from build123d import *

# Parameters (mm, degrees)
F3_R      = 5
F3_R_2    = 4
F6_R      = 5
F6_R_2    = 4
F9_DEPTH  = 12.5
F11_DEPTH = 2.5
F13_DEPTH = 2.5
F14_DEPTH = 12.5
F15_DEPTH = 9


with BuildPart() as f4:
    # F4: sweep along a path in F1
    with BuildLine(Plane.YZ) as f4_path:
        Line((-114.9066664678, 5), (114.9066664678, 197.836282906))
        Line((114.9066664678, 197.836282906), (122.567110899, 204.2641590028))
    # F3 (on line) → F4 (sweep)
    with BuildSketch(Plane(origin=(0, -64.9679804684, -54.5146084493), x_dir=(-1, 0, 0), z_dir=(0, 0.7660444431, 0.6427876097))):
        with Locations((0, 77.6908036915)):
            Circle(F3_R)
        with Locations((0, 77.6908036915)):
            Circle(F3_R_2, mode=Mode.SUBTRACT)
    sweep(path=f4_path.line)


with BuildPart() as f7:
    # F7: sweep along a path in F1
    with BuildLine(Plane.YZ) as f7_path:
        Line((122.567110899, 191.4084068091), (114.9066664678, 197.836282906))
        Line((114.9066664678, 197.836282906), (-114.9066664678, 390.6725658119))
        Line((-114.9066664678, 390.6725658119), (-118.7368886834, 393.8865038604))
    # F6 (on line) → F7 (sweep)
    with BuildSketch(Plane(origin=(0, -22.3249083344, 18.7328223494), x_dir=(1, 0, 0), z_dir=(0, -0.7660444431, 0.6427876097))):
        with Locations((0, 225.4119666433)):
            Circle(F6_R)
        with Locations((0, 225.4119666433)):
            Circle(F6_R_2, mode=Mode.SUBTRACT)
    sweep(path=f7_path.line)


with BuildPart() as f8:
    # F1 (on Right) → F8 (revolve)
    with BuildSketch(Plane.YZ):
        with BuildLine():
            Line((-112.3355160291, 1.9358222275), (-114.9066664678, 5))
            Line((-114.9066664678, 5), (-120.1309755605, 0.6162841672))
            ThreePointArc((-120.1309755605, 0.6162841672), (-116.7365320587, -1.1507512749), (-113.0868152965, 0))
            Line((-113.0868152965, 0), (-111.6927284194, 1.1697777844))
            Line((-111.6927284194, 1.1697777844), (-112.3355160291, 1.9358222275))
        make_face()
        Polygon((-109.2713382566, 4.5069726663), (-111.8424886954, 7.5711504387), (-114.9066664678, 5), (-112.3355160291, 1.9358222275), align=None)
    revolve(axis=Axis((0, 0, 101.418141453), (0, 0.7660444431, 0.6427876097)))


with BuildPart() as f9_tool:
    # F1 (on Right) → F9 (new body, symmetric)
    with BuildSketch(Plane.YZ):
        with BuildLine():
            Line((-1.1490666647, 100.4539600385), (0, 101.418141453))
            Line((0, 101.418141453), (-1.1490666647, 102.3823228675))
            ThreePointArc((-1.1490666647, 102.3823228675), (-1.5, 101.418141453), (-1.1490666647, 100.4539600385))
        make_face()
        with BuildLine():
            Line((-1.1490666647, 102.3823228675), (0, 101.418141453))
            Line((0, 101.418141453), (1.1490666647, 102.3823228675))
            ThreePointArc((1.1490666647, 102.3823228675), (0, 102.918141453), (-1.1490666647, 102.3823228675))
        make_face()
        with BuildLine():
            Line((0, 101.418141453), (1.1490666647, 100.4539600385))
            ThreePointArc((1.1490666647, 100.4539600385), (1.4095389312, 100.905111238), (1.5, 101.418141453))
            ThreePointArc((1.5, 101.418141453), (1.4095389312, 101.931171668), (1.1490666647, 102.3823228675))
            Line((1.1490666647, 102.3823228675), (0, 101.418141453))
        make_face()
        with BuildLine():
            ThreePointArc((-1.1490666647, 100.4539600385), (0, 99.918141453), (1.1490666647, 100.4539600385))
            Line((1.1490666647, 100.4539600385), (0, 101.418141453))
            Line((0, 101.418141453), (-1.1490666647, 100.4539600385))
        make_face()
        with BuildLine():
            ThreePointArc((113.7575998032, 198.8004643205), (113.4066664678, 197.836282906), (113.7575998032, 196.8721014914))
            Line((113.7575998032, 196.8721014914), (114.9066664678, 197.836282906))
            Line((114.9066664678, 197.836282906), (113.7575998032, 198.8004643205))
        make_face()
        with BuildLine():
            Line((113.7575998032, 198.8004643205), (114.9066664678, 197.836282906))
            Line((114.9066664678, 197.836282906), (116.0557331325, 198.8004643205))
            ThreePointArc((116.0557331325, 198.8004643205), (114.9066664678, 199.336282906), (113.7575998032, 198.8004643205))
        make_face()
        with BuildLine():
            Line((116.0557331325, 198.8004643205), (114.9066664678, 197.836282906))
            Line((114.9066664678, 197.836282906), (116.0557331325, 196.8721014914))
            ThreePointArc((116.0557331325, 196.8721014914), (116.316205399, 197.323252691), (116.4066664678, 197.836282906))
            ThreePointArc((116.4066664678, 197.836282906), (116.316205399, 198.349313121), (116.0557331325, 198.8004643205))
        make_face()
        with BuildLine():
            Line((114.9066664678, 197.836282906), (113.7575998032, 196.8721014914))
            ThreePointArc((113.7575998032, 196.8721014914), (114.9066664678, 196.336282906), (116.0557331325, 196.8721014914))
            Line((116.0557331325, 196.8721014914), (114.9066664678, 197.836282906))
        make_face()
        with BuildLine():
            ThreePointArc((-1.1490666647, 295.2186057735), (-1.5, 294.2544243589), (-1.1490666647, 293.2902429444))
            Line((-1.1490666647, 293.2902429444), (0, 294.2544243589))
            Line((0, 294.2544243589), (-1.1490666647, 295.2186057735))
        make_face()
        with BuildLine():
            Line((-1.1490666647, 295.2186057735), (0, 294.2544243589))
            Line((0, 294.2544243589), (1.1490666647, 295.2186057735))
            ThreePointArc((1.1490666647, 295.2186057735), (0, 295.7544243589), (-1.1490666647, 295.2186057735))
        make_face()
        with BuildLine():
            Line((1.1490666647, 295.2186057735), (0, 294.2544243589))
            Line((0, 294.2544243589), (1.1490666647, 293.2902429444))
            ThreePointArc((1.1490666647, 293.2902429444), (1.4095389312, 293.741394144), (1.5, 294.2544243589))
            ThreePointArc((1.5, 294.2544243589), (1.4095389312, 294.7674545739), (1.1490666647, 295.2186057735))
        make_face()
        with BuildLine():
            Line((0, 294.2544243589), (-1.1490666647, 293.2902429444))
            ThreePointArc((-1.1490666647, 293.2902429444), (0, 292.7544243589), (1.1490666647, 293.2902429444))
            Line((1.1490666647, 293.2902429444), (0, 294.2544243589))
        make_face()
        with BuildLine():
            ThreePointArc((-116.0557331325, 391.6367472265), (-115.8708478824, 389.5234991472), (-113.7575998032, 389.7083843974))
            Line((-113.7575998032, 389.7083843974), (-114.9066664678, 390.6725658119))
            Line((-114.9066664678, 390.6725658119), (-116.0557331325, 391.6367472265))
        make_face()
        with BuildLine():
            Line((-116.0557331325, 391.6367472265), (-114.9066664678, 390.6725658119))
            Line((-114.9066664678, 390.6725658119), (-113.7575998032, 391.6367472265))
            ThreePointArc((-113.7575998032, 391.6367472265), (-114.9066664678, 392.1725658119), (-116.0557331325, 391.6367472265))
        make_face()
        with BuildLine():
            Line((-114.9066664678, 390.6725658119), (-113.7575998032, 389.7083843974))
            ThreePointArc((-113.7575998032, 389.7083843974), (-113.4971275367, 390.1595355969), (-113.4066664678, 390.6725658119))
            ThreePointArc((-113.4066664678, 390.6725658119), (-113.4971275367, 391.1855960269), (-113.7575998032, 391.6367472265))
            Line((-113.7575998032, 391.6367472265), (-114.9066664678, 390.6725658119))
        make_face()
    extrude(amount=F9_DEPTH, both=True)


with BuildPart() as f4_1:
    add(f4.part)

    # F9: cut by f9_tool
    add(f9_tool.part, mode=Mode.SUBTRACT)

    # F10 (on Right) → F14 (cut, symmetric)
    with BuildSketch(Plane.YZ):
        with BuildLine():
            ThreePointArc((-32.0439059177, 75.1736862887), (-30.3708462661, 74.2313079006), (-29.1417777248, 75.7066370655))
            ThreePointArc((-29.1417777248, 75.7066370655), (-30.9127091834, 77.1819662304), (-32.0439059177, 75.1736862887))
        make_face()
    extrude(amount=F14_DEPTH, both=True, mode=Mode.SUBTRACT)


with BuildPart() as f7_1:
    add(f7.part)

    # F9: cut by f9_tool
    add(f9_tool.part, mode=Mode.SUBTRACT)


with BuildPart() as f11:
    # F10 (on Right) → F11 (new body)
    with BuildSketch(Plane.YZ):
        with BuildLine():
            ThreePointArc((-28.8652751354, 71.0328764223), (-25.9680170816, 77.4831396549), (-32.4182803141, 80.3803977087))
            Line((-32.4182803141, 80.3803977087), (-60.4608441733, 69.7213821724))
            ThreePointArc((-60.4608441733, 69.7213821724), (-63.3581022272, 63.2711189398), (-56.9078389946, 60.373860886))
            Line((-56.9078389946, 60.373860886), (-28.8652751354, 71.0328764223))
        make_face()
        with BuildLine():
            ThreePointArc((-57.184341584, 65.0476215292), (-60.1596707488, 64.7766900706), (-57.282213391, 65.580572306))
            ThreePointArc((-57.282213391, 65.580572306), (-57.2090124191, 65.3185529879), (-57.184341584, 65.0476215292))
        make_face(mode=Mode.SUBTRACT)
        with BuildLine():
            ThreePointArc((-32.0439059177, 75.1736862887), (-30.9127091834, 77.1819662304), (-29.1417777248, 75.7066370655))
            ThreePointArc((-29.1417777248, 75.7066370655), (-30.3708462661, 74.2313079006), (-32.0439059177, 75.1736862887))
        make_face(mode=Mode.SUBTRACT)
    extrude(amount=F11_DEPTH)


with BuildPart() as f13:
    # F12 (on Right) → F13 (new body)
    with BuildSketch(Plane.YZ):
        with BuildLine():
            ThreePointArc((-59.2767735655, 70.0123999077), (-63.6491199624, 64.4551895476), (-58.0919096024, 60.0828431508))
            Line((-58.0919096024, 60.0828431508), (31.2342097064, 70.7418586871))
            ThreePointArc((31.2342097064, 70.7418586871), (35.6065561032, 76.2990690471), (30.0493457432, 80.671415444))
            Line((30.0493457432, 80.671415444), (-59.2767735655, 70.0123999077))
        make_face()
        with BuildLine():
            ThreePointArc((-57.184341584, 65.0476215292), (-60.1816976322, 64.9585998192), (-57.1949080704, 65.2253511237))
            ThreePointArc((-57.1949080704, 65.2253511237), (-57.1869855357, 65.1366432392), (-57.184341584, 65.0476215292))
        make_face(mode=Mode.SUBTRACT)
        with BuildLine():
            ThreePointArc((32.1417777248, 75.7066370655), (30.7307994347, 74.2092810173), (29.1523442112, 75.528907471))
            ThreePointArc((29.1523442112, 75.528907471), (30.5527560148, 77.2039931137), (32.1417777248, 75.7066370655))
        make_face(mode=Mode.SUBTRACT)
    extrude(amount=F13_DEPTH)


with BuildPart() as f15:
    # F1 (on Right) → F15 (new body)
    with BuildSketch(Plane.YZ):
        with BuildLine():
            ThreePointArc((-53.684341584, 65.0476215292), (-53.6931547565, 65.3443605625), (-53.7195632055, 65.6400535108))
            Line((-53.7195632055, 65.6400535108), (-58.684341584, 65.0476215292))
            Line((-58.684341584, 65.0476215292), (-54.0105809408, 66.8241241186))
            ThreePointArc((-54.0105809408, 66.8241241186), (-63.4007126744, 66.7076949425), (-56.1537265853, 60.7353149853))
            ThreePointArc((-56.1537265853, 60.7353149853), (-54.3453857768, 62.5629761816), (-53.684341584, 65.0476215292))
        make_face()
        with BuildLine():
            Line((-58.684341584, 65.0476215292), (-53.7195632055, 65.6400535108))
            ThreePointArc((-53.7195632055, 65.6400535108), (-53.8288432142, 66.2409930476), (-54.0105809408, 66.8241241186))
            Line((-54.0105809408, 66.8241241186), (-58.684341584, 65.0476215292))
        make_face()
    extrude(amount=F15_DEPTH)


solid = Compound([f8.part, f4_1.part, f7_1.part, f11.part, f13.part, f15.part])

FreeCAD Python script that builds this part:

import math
import FreeCAD as App
import Part
import Sketcher

V = App.Vector
Q = App.Units.Quantity

doc = App.newDocument("Part")
params = doc.addObject("Spreadsheet::Sheet", "Params")
for row, (alias, value) in enumerate([
    ("sketch1_diameter", "10 mm"),
    ("sketch1_diameter2", "8 mm"),
    ("sketch2_width", "300 mm"),
    ("sketch2_width2", "10 mm"),
    ("sketch3_diameter", "10 mm"),
    ("sketch3_diameter2", "8 mm"),
    ("sketch4_width", "10 mm"),
    ("sketch4_width2", "300 mm"),
    ("sketch4_width3", "5 mm"),
    ("sketch5_radius", "5 mm"),
    ("sketch5_length", "1 mm"),
    ("sketch5_length2", "4 mm"),
    ("revolution_angle", "360 deg"),
    ("sketch6_radius", "1.5 mm"),
    ("pad1_length", "25 mm"),
    ("sketch7_radius", "1.5 mm"),
    ("pocket1_length", "25 mm"),
    ("sketch8_radius", "5 mm"),
    ("sketch8_radius2", "1.5 mm"),
    ("sketch8_length", "30 mm"),
    ("pad2_length", "2.5 mm"),
    ("sketch9_radius", "5 mm"),
    ("sketch9_radius2", "5 mm"),
    ("sketch9_radius3", "1.5 mm"),
    ("sketch9_radius4", "1.5 mm"),
    ("sketch9_radius5", "1.5 mm"),
    ("pad3_length", "2.5 mm"),
    ("sketch10_radius", "5 mm"),
    ("pad4_length", "9 mm"),
], start=1):
    params.set(f"A{row}", alias)
    params.set(f"B{row}", "=" + value)
    params.setAlias(f"B{row}", alias)

body = doc.addObject("PartDesign::Body", "Body")

# Sketch on an angled plane
sketch1 = body.newObject("Sketcher::SketchObject", "Sketch")
sketch1.Placement = App.Placement(V(0, -64.96798, -54.514608), App.Rotation(V(-1, 0, 0), V(0, -0.64278761, 0.766044443), V(0, 0.766044443, 0.64278761), "ZXY"))
sketch1.addGeometry([
    Part.Circle(V(0, 77.7, 0), V(0, 0, 1), 5),
    Part.Circle(V(0, 77.7, 0), V(0, 0, 1), 4),
], False)
sketch1.addConstraint([
    Sketcher.Constraint("Coincident", 1, 3, 0, 3),
    Sketcher.Constraint("PointOnObject", 0, 3, -2),
    Sketcher.Constraint("Diameter", 0, Q("10 mm")),
    Sketcher.Constraint("Diameter", 1, Q("8 mm")),
    Sketcher.Constraint("DistanceY", -1, 1, 0, 3, Q("77.690804 mm")),
])
sketch1.setExpression("Constraints[2]", "Params.sketch1_diameter")
sketch1.setExpression("Constraints[3]", "Params.sketch1_diameter2")

# Sketch on an angled plane
sketch2 = body.newObject("Sketcher::SketchObject", "Sketch001")
sketch2.Placement = App.Placement(V(0, -49.938686, 59.514608), App.Rotation(V(0, 0.766044443, 0.64278761), V(1, 0, 0), V(0, 0.64278761, -0.766044443), "ZXY"))
sketch2.addGeometry([
    Part.LineSegment(V(-85, 0, 0), V(215, 0, 0)),
    Part.LineSegment(V(215, 0, 0), V(225, 0, 0)),
], False)
sketch2.addConstraint([
    Sketcher.Constraint("Coincident", 0, 2, 1, 1),
    Sketcher.Constraint("Horizontal", 0),
    Sketcher.Constraint("Horizontal", 1),
    Sketcher.Constraint("PointOnObject", 0, 1, -1),
    Sketcher.Constraint("DistanceX", 0, 1, 0, 2, Q("300 mm")),
    Sketcher.Constraint("DistanceX", 1, 1, 1, 2, Q("10 mm")),
    Sketcher.Constraint("DistanceX", 0, 1, -1, 1, Q("84.809675 mm")),
])
sketch2.setExpression("Constraints[4]", "Params.sketch2_width")
sketch2.setExpression("Constraints[5]", "Params.sketch2_width2")
doc.recompute()

additivepipe = body.newObject("PartDesign::AdditivePipe", "AdditivePipe")
additivepipe.Profile = sketch1
additivepipe.Spine = (sketch2, ["Edge1", "Edge2"])
body2 = doc.addObject("PartDesign::Body", "Body001")

# Sketch on an angled plane
sketch3 = body2.newObject("Sketcher::SketchObject", "Sketch002")
sketch3.Placement = App.Placement(V(0, -22.324908, 18.732822), App.Rotation(V(1, 0, 0), V(0, 0.64278761, 0.766044443), V(0, -0.766044443, 0.64278761), "ZXY"))
sketch3.addGeometry([
    Part.Circle(V(0, 225.4, 0), V(0, 0, 1), 5),
    Part.Circle(V(0, 225.4, 0), V(0, 0, 1), 4),
], False)
sketch3.addConstraint([
    Sketcher.Constraint("Coincident", 1, 3, 0, 3),
    Sketcher.Constraint("PointOnObject", 0, 3, -2),
    Sketcher.Constraint("Diameter", 0, Q("10 mm")),
    Sketcher.Constraint("Diameter", 1, Q("8 mm")),
    Sketcher.Constraint("DistanceY", -1, 1, 0, 3, Q("225.411967 mm")),
])
sketch3.setExpression("Constraints[2]", "Params.sketch3_diameter")
sketch3.setExpression("Constraints[3]", "Params.sketch3_diameter2")

# Sketch on an angled plane
sketch4 = body2.newObject("Sketcher::SketchObject", "Sketch003")
sketch4.Placement = App.Placement(V(0, 144.892019, 172.675584), App.Rotation(V(0, -0.766044443, 0.64278761), V(1, 0, 0), V(0, 0.64278761, 0.766044443), "ZXY"))
sketch4.addGeometry([
    Part.LineSegment(V(29, 0, 0), V(39, 0, 0)),
    Part.LineSegment(V(39, 0, 0), V(339, 0, 0)),
    Part.LineSegment(V(339, 0, 0), V(344, 0, 0)),
], False)
sketch4.addConstraint([
    Sketcher.Constraint("Coincident", 0, 2, 1, 1),
    Sketcher.Constraint("Coincident", 1, 2, 2, 1),
    Sketcher.Constraint("Horizontal", 0),
    Sketcher.Constraint("Horizontal", 1),
    Sketcher.Constraint("Horizontal", 2),
    Sketcher.Constraint("PointOnObject", 0, 1, -1),
    Sketcher.Constraint("DistanceX", 0, 1, 0, 2, Q("10 mm")),
    Sketcher.Constraint("DistanceX", 1, 1, 1, 2, Q("300 mm")),
    Sketcher.Constraint("DistanceX", 2, 1, 2, 2, Q("5 mm")),
    Sketcher.Constraint("DistanceX", -1, 1, 0, 1, Q("29.143098 mm")),
])
sketch4.setExpression("Constraints[6]", "Params.sketch4_width")
sketch4.setExpression("Constraints[7]", "Params.sketch4_width2")
sketch4.setExpression("Constraints[8]", "Params.sketch4_width3")
doc.recompute()

additivepipe2 = body2.newObject("PartDesign::AdditivePipe", "AdditivePipe001")
additivepipe2.Profile = sketch3
additivepipe2.Spine = (sketch4, ["Edge1", "Edge2", "Edge3"])
body3 = doc.addObject("PartDesign::Body", "Body002")

# Sketch on YZ plane
sketch5 = body3.newObject("Sketcher::SketchObject", "Sketch004")
sketch5.AttachmentSupport = (doc.getObject("YZ_Plane002"), [""])
sketch5.MapMode = "FlatFace"
sketch5.addGeometry([
    Part.LineSegment(V(-114.9, 5, 0), V(-120.1, 0.6, 0)),  # 0
    Part.ArcOfCircle(Part.Circle(V(-116.3, 3.8, 0), V(0, 0, 1), 5), math.radians(-140), math.radians(-50)),  # 1
    Part.LineSegment(V(-113.1, 0, 0), V(-111.7, 1.2, 0)),  # 2
    Part.LineSegment(V(-111.7, 1.2, 0), V(-112.3, 1.9, 0)),  # 3
    Part.LineSegment(V(-112.3, 1.9, 0), V(-109.3, 4.5, 0)),  # 4
    Part.LineSegment(V(-109.3, 4.5, 0), V(-111.8, 7.6, 0)),  # 5
    Part.LineSegment(V(-111.8, 7.6, 0), V(-114.9, 5, 0)),  # 6
], False)
sketch5.addGeometry(Part.LineSegment(V(-120.1, 0.6, 0), V(-111.8, 7.6, 0)), True)  # axis
sketch5.addConstraint([
    Sketcher.Constraint("Coincident", 0, 2, 1, 1),
    Sketcher.Constraint("Tangent", 1, 2, 2, 1),
    Sketcher.Constraint("Coincident", 2, 2, 3, 1),
    Sketcher.Constraint("Coincident", 3, 2, 4, 1),
    Sketcher.Constraint("Coincident", 4, 2, 5, 1),
    Sketcher.Constraint("Coincident", 5, 2, 6, 1),
    Sketcher.Constraint("Coincident", 6, 2, 0, 1),
    Sketcher.Constraint("Coincident", 7, 1, 0, 2),
    Sketcher.Constraint("Coincident", 7, 2, 5, 2),
    Sketcher.Constraint("PointOnObject", 1, 2, -1),
    Sketcher.Constraint("Parallel", 0, 2),
    Sketcher.Constraint("Perpendicular", 2, 3),
    Sketcher.Constraint("Perpendicular", 3, 4),
    Sketcher.Constraint("Perpendicular", 4, 5),
    Sketcher.Constraint("Perpendicular", 5, 6),
    Sketcher.Constraint("Equal", 4, 5),
    Sketcher.Constraint("Equal", 5, 6),
    Sketcher.Constraint("Radius", 1, Q("5 mm")),
    Sketcher.Constraint("Angle", 0, Q("-140 deg")),
    Sketcher.Constraint("Distance", 3, Q("1 mm")),
    Sketcher.Constraint("Distance", 4, Q("4 mm")),
    Sketcher.Constraint("DistanceY", -1, 1, 6, 2, Q("5 mm")),
    Sketcher.Constraint("DistanceX", 2, 2, -1, 1, Q("111.692728 mm")),
])
sketch5.setExpression("Constraints[17]", "Params.sketch5_radius")
sketch5.setExpression("Constraints[19]", "Params.sketch5_length")
sketch5.setExpression("Constraints[20]", "Params.sketch5_length2")
revolution = body3.newObject("PartDesign::Revolution", "Revolution")
revolution.Profile = sketch5
revolution.ReferenceAxis = (sketch5, ["Axis0"])
revolution.setExpression("Angle", "Params.revolution_angle")
body4 = doc.addObject("PartDesign::Body", "Body003")
body4.AllowCompound = True

# Sketch on YZ plane
sketch6 = body4.newObject("Sketcher::SketchObject", "Sketch005")
sketch6.AttachmentSupport = (doc.getObject("YZ_Plane003"), [""])
sketch6.MapMode = "FlatFace"
sketch6.addGeometry([
    Part.ArcOfCircle(Part.Circle(V(0, 101.4, 0), V(0, 0, 1), 1.5), math.radians(-40), math.radians(0)),  # 0
    Part.ArcOfCircle(Part.Circle(V(0, 101.4, 0), V(0, 0, 1), 1.5), math.radians(0), math.radians(40)),  # 1
    Part.ArcOfCircle(Part.Circle(V(0, 101.4, 0), V(0, 0, 1), 1.5), math.radians(40), math.radians(140)),  # 2
    Part.ArcOfCircle(Part.Circle(V(0, 101.4, 0), V(0, 0, 1), 1.5), math.radians(140), math.radians(220)),  # 3
    Part.ArcOfCircle(Part.Circle(V(0, 101.4, 0), V(0, 0, 1), 1.5), math.radians(-140), math.radians(-40)),  # 4
    Part.ArcOfCircle(Part.Circle(V(114.9, 197.8, 0), V(0, 0, 1), 1.5), math.radians(140), math.radians(220)),  # 5
    Part.ArcOfCircle(Part.Circle(V(114.9, 197.8, 0), V(0, 0, 1), 1.5), math.radians(-140), math.radians(-40)),  # 6
    Part.ArcOfCircle(Part.Circle(V(114.9, 197.8, 0), V(0, 0, 1), 1.5), math.radians(-40), math.radians(0)),  # 7
    Part.ArcOfCircle(Part.Circle(V(114.9, 197.8, 0), V(0, 0, 1), 1.5), math.radians(0), math.radians(40)),  # 8
    Part.ArcOfCircle(Part.Circle(V(114.9, 197.8, 0), V(0, 0, 1), 1.5), math.radians(40), math.radians(140)),  # 9
    Part.ArcOfCircle(Part.Circle(V(0, 294.3, 0), V(0, 0, 1), 1.5), math.radians(140), math.radians(220)),  # 10
    Part.ArcOfCircle(Part.Circle(V(0, 294.3, 0), V(0, 0, 1), 1.5), math.radians(-140), math.radians(-40)),  # 11
    Part.ArcOfCircle(Part.Circle(V(0, 294.3, 0), V(0, 0, 1), 1.5), math.radians(-40), math.radians(0)),  # 12
    Part.ArcOfCircle(Part.Circle(V(0, 294.3, 0), V(0, 0, 1), 1.5), math.radians(0), math.radians(40)),  # 13
    Part.ArcOfCircle(Part.Circle(V(0, 294.3, 0), V(0, 0, 1), 1.5), math.radians(40), math.radians(140)),  # 14
    Part.ArcOfCircle(Part.Circle(V(-114.9, 390.7, 0), V(0, 0, 1), 1.5), math.radians(140), math.radians(320)),  # 15
    Part.ArcOfCircle(Part.Circle(V(-114.9, 390.7, 0), V(0, 0, 1), 1.5), math.radians(-40), math.radians(0)),  # 16
    Part.ArcOfCircle(Part.Circle(V(-114.9, 390.7, 0), V(0, 0, 1), 1.5), math.radians(0), math.radians(40)),  # 17
    Part.ArcOfCircle(Part.Circle(V(-114.9, 390.7, 0), V(0, 0, 1), 1.5), math.radians(40), math.radians(140)),  # 18
], False)
sketch6.addConstraint([
    Sketcher.Constraint("Tangent", 0, 2, 1, 1),
    Sketcher.Constraint("Tangent", 1, 2, 2, 1),
    Sketcher.Constraint("Tangent", 2, 2, 3, 1),
    Sketcher.Constraint("Tangent", 3, 2, 4, 1),
    Sketcher.Constraint("Tangent", 4, 2, 0, 1),
    Sketcher.Constraint("Tangent", 5, 2, 6, 1),
    Sketcher.Constraint("Tangent", 6, 2, 7, 1),
    Sketcher.Constraint("Tangent", 7, 2, 8, 1),
    Sketcher.Constraint("Tangent", 8, 2, 9, 1),
    Sketcher.Constraint("Tangent", 9, 2, 5, 1),
    Sketcher.Constraint("Tangent", 10, 2, 11, 1),
    Sketcher.Constraint("Tangent", 11, 2, 12, 1),
    Sketcher.Constraint("Tangent", 12, 2, 13, 1),
    Sketcher.Constraint("Tangent", 13, 2, 14, 1),
    Sketcher.Constraint("Tangent", 14, 2, 10, 1),
    Sketcher.Constraint("Tangent", 15, 2, 16, 1),
    Sketcher.Constraint("Tangent", 16, 2, 17, 1),
    Sketcher.Constraint("Tangent", 17, 2, 18, 1),
    Sketcher.Constraint("Tangent", 18, 2, 15, 1),
    Sketcher.Constraint("Coincident", 2, 3, 0, 3),
    Sketcher.Constraint("Coincident", 7, 3, 5, 3),
    Sketcher.Constraint("Coincident", 12, 3, 10, 3),
    Sketcher.Constraint("Equal", 4, 5),
    Sketcher.Constraint("Equal", 9, 10),
    Sketcher.Constraint("Equal", 14, 15),
    Sketcher.Constraint("Equal", 15, 16),
    Sketcher.Constraint("Symmetric", 1, 2, 2, 2, -2),
    Sketcher.Constraint("Symmetric", 10, 2, 11, 2, -2),
    Sketcher.Constraint("Horizontal", 4, 3, 0, 2),
    Sketcher.Constraint("Horizontal", 3, 2, 4, 2),
    Sketcher.Constraint("Horizontal", 5, 2, 6, 2),
    Sketcher.Constraint("Horizontal", 9, 3, 7, 2),
    Sketcher.Constraint("Horizontal", 8, 2, 9, 2),
    Sketcher.Constraint("Horizontal", 14, 3, 12, 2),
    Sketcher.Constraint("Horizontal", 13, 2, 14, 2),
    Sketcher.Constraint("Horizontal", 18, 3, 16, 2),
    Sketcher.Constraint("Horizontal", 17, 2, 18, 2),
    Sketcher.Constraint("Vertical", 2, 2, 3, 2),
    Sketcher.Constraint("Vertical", 6, 2, 8, 2),
    Sketcher.Constraint("Vertical", 3, 2, 10, 2),
    Sketcher.Constraint("Vertical", 11, 2, 13, 2),
    Sketcher.Constraint("Vertical", 15, 2, 17, 2),
    Sketcher.Constraint("Radius", 0, Q("1.5 mm")),
    Sketcher.Constraint("DistanceX", -1, 1, 5, 2, Q("113.7576 mm")),
    Sketcher.Constraint("DistanceY", -1, 1, 5, 2, Q("196.872101 mm")),
    Sketcher.Constraint("DistanceX", 15, 2, -1, 1, Q("113.7576 mm")),
    Sketcher.Constraint("DistanceY", -1, 1, 0, 3, Q("101.418141 mm")),
    Sketcher.Constraint("DistanceY", -1, 1, 3, 2, Q("100.45396 mm")),
    Sketcher.Constraint("DistanceY", 0, 3, 5, 3, Q("96.418141 mm")),
    Sketcher.Constraint("DistanceY", 5, 3, 10, 3, Q("96.418141 mm")),
    Sketcher.Constraint("DistanceY", 10, 3, 15, 3, Q("96.418141 mm")),
    Sketcher.Constraint("DistanceY", 15, 2, 15, 3, Q("0.964181 mm")),
])
sketch6.setExpression("Constraints[42]", "Params.sketch6_radius")
pad1 = body4.newObject("PartDesign::Pad", "Pad")
pad1.Profile = sketch6
pad1.setExpression("Length", "Params.pad1_length")
pad1.Midplane = True
doc.recompute()

body5 = doc.addObject("PartDesign::Body", "Body004")
body5.BaseFeature = body4
boolean = body.newObject("PartDesign::Boolean", "Boolean")
boolean.Type = "Cut"
boolean.addObjects([body5])
doc.recompute()

# Sketch on YZ plane
sketch7 = body.newObject("Sketcher::SketchObject", "Sketch006")
sketch7.AttachmentSupport = (doc.getObject("YZ_Plane"), [""])
sketch7.MapMode = "FlatFace"
sketch7.addGeometry([
    Part.ArcOfCircle(Part.Circle(V(-30.6, 75.7, 0), V(0, 0, 1), 1.5), math.radians(-159), math.radians(0)),
    Part.ArcOfCircle(Part.Circle(V(-30.6, 75.7, 0), V(0, 0, 1), 1.5), math.radians(0), math.radians(201)),
], False)
sketch7.addConstraint([
    Sketcher.Constraint("Tangent", 0, 1, 1, 2),
    Sketcher.Constraint("Coincident", 1, 1, 0, 2),
    Sketcher.Constraint("Horizontal", 0, 3, 1, 1),
    Sketcher.Constraint("Radius", 0, Q("1.5 mm")),
    Sketcher.Constraint("DistanceX", 0, 1, 0, 3, Q("1.402128 mm")),
    Sketcher.Constraint("DistanceX", 0, 3, -1, 1, Q("30.641778 mm")),
    Sketcher.Constraint("DistanceY", -1, 1, 0, 3, Q("75.706637 mm")),
])
sketch7.setExpression("Constraints[3]", "Params.sketch7_radius")
pocket1 = body.newObject("PartDesign::Pocket", "Pocket")
pocket1.Profile = sketch7
pocket1.setExpression("Length", "Params.pocket1_length")
pocket1.Midplane = True
doc.recompute()

boolean2 = body2.newObject("PartDesign::Boolean", "Boolean001")
boolean2.Type = "Cut"
boolean2.addObjects([body4])
body6 = doc.addObject("PartDesign::Body", "Body005")

# Sketch on YZ plane
sketch8 = body6.newObject("Sketcher::SketchObject", "Sketch007")
sketch8.AttachmentSupport = (doc.getObject("YZ_Plane005"), [""])
sketch8.MapMode = "FlatFace"
sketch8.addGeometry([
    Part.ArcOfCircle(Part.Circle(V(-30.6, 75.7, 0), V(0, 0, 1), 5), math.radians(-69), math.radians(111)),  # 0
    Part.LineSegment(V(-32.4, 80.4, 0), V(-60.5, 69.7, 0)),  # 1
    Part.ArcOfCircle(Part.Circle(V(-58.7, 65, 0), V(0, 0, 1), 5), math.radians(111), math.radians(291)),  # 2
    Part.LineSegment(V(-56.9, 60.4, 0), V(-28.9, 71, 0)),  # 3
    Part.ArcOfCircle(Part.Circle(V(-58.7, 65, 0), V(0, 0, 1), 1.5), math.radians(0), math.radians(21)),  # 4
    Part.ArcOfCircle(Part.Circle(V(-58.7, 65, 0), V(0, 0, 1), 1.5), math.radians(21), math.radians(360)),  # 5
    Part.ArcOfCircle(Part.Circle(V(-30.6, 75.7, 0), V(0, 0, 1), 1.5), math.radians(-159), math.radians(0)),  # 6
    Part.ArcOfCircle(Part.Circle(V(-30.6, 75.7, 0), V(0, 0, 1), 1.5), math.radians(0), math.radians(201)),  # 7
], False)
sketch8.addConstraint([
    Sketcher.Constraint("Tangent", 0, 2, 1, 1),
    Sketcher.Constraint("Tangent", 1, 2, 2, 1),
    Sketcher.Constraint("Tangent", 2, 2, 3, 1),
    Sketcher.Constraint("Tangent", 3, 2, 0, 1),
    Sketcher.Constraint("Tangent", 4, 1, 5, 2),
    Sketcher.Constraint("Coincident", 5, 1, 4, 2),
    Sketcher.Constraint("Tangent", 6, 1, 7, 2),
    Sketcher.Constraint("Coincident", 7, 1, 6, 2),
    Sketcher.Constraint("Coincident", 4, 3, 2, 3),
    Sketcher.Constraint("Coincident", 6, 3, 0, 3),
    Sketcher.Constraint("Equal", 0, 2),
    Sketcher.Constraint("Equal", 5, 6),
    Sketcher.Constraint("Horizontal", 5, 3, 4, 1),
    Sketcher.Constraint("Horizontal", 6, 3, 7, 1),
    Sketcher.Constraint("Radius", 0, Q("5 mm")),
    Sketcher.Constraint("Radius", 4, Q("1.5 mm")),
    Sketcher.Constraint("Distance", 1, Q("30 mm")),
    Sketcher.Constraint("DistanceX", 2, 3, -1, 1, Q("58.684342 mm")),
    Sketcher.Constraint("DistanceY", -1, 1, 2, 3, Q("65.047622 mm")),
    Sketcher.Constraint("DistanceX", 0, 2, -1, 1, Q("32.41828 mm")),
    Sketcher.Constraint("DistanceX", 5, 1, 4, 1, Q("0.097872 mm")),
    Sketcher.Constraint("DistanceX", 6, 1, 0, 3, Q("1.402128 mm")),
])
sketch8.setExpression("Constraints[14]", "Params.sketch8_radius")
sketch8.setExpression("Constraints[15]", "Params.sketch8_radius2")
sketch8.setExpression("Constraints[16]", "Params.sketch8_length")
pad2 = body6.newObject("PartDesign::Pad", "Pad001")
pad2.Profile = sketch8
pad2.setExpression("Length", "Params.pad2_length")
body7 = doc.addObject("PartDesign::Body", "Body006")

# Sketch on YZ plane
sketch9 = body7.newObject("Sketcher::SketchObject", "Sketch008")
sketch9.AttachmentSupport = (doc.getObject("YZ_Plane006"), [""])
sketch9.MapMode = "FlatFace"
sketch9.addGeometry([
    Part.ArcOfCircle(Part.Circle(V(-58.684342, 65.047622, 0), V(0, 0, 1), 5), math.radians(96.804756), math.radians(276.804756)),  # 0
    Part.LineSegment(V(-58.09191, 60.082843, 0), V(31.23421, 70.741859, 0)),  # 1
    Part.ArcOfCircle(Part.Circle(V(30.641778, 75.706637, 0), V(0, 0, 1), 5), math.radians(-83.195244), math.radians(96.804756)),  # 2
    Part.LineSegment(V(30.049346, 80.671415, 0), V(-59.276774, 70.0124, 0)),  # 3
    Part.ArcOfCircle(Part.Circle(V(-58.684342, 65.047622, 0), V(0, 0, 1), 1.5), math.radians(0), math.radians(6.804756)),  # 4
    Part.ArcOfCircle(Part.Circle(V(-58.684342, 65.047622, 0), V(0, 0, 1), 1.5), math.radians(6.804756), math.radians(360)),  # 5
    Part.ArcOfCircle(Part.Circle(V(30.641778, 75.706637, 0), V(0, 0, 1), 1.5), math.radians(0), math.radians(186.804756)),  # 6
    Part.ArcOfCircle(Part.Circle(V(30.641778, 75.706637, 0), V(0, 0, 1), 1.5), math.radians(-173.195244), math.radians(0)),  # 7
], False)
sketch9.addConstraint([
    Sketcher.Constraint("Coincident", 0, 2, 1, 1),
    Sketcher.Constraint("Coincident", 1, 2, 2, 1),
    Sketcher.Constraint("Coincident", 2, 2, 3, 1),
    Sketcher.Constraint("Coincident", 3, 2, 0, 1),
    Sketcher.Constraint("Coincident", 4, 1, 5, 2),
    Sketcher.Constraint("Coincident", 5, 1, 4, 2),
    Sketcher.Constraint("Coincident", 6, 1, 7, 2),
    Sketcher.Constraint("Coincident", 7, 1, 6, 2),
    Sketcher.Constraint("Coincident", 4, 3, 0, 3),
    Sketcher.Constraint("Coincident", 6, 3, 2, 3),
    Sketcher.Constraint("Radius", 0, Q("5 mm")),
    Sketcher.Constraint("Radius", 2, Q("5 mm")),
    Sketcher.Constraint("Radius", 4, Q("1.5 mm")),
    Sketcher.Constraint("Radius", 5, Q("1.5 mm")),
    Sketcher.Constraint("Radius", 6, Q("1.5 mm")),
    Sketcher.Constraint("Radius", 7, Q("1.5 mm")),
    Sketcher.Constraint("DistanceY", -1, 1, 3, 2, Q("70.0124 mm")),
    Sketcher.Constraint("DistanceX", 0, 3, -1, 1, Q("58.684342 mm")),
    Sketcher.Constraint("DistanceY", -1, 1, 0, 3, Q("65.047622 mm")),
    Sketcher.Constraint("DistanceX", 0, 2, -1, 1, Q("58.09191 mm")),
    Sketcher.Constraint("DistanceX", -1, 1, 1, 2, Q("31.23421 mm")),
    Sketcher.Constraint("DistanceY", -1, 1, 1, 2, Q("70.741859 mm")),
    Sketcher.Constraint("DistanceY", -1, 1, 4, 1, Q("65.047622 mm")),
    Sketcher.Constraint("DistanceX", 5, 1, -1, 1, Q("57.194908 mm")),
    Sketcher.Constraint("DistanceX", 0, 3, 2, 3, Q("89.326119 mm")),
    Sketcher.Constraint("DistanceX", 2, 2, 2, 3, Q("0.592432 mm")),
    Sketcher.Constraint("DistanceY", 1, 2, 6, 1, Q("4.964778 mm")),
    Sketcher.Constraint("DistanceY", 7, 1, 6, 3, Q("0.17773 mm")),
])
sketch9.setExpression("Constraints[10]", "Params.sketch9_radius")
sketch9.setExpression("Constraints[11]", "Params.sketch9_radius2")
sketch9.setExpression("Constraints[12]", "Params.sketch9_radius3")
sketch9.setExpression("Constraints[13]", "Params.sketch9_radius4")
sketch9.setExpression("Constraints[14]", "Params.sketch9_radius5")
pad3 = body7.newObject("PartDesign::Pad", "Pad002")
pad3.Profile = sketch9
pad3.setExpression("Length", "Params.pad3_length")
body8 = doc.addObject("PartDesign::Body", "Body007")

# Sketch on YZ plane
sketch10 = body8.newObject("Sketcher::SketchObject", "Sketch009")
sketch10.AttachmentSupport = (doc.getObject("YZ_Plane007"), [""])
sketch10.MapMode = "FlatFace"
sketch10.addGeometry([
    Part.ArcOfCircle(Part.Circle(V(-58.7, 65, 0), V(0, 0, 1), 5), math.radians(0), math.radians(6.8)),
    Part.ArcOfCircle(Part.Circle(V(-58.7, 65, 0), V(0, 0, 1), 5), math.radians(6.8), math.radians(20.81)),
    Part.ArcOfCircle(Part.Circle(V(-58.7, 65, 0), V(0, 0, 1), 5), math.radians(21), math.radians(300)),
    Part.ArcOfCircle(Part.Circle(V(-58.7, 65, 0), V(0, 0, 1), 5), math.radians(-60), math.radians(0)),
], False)
sketch10.addConstraint([
    Sketcher.Constraint("Tangent", 0, 2, 1, 1),
    Sketcher.Constraint("Tangent", 1, 2, 2, 1),
    Sketcher.Constraint("Tangent", 2, 2, 3, 1),
    Sketcher.Constraint("Tangent", 3, 2, 0, 1),
    Sketcher.Constraint("Equal", 0, 1),
    Sketcher.Constraint("Horizontal", 2, 3, 3, 2),
    Sketcher.Constraint("Radius", 0, Q("5 mm")),
    Sketcher.Constraint("DistanceX", 0, 3, -1, 1, Q("58.684342 mm")),
    Sketcher.Constraint("DistanceY", -1, 1, 0, 3, Q("65.047622 mm")),
    Sketcher.Constraint("DistanceX", 1, 2, -1, 1, Q("54.010581 mm")),
    Sketcher.Constraint("DistanceX", 0, 3, 0, 2, Q("4.964778 mm")),
    Sketcher.Constraint("DistanceY", 2, 2, 0, 2, Q("4.904739 mm")),
])
sketch10.setExpression("Constraints[6]", "Params.sketch10_radius")
pad4 = body8.newObject("PartDesign::Pad", "Pad003")
pad4.Profile = sketch10
pad4.setExpression("Length", "Params.pad4_length")

doc.recompute()
